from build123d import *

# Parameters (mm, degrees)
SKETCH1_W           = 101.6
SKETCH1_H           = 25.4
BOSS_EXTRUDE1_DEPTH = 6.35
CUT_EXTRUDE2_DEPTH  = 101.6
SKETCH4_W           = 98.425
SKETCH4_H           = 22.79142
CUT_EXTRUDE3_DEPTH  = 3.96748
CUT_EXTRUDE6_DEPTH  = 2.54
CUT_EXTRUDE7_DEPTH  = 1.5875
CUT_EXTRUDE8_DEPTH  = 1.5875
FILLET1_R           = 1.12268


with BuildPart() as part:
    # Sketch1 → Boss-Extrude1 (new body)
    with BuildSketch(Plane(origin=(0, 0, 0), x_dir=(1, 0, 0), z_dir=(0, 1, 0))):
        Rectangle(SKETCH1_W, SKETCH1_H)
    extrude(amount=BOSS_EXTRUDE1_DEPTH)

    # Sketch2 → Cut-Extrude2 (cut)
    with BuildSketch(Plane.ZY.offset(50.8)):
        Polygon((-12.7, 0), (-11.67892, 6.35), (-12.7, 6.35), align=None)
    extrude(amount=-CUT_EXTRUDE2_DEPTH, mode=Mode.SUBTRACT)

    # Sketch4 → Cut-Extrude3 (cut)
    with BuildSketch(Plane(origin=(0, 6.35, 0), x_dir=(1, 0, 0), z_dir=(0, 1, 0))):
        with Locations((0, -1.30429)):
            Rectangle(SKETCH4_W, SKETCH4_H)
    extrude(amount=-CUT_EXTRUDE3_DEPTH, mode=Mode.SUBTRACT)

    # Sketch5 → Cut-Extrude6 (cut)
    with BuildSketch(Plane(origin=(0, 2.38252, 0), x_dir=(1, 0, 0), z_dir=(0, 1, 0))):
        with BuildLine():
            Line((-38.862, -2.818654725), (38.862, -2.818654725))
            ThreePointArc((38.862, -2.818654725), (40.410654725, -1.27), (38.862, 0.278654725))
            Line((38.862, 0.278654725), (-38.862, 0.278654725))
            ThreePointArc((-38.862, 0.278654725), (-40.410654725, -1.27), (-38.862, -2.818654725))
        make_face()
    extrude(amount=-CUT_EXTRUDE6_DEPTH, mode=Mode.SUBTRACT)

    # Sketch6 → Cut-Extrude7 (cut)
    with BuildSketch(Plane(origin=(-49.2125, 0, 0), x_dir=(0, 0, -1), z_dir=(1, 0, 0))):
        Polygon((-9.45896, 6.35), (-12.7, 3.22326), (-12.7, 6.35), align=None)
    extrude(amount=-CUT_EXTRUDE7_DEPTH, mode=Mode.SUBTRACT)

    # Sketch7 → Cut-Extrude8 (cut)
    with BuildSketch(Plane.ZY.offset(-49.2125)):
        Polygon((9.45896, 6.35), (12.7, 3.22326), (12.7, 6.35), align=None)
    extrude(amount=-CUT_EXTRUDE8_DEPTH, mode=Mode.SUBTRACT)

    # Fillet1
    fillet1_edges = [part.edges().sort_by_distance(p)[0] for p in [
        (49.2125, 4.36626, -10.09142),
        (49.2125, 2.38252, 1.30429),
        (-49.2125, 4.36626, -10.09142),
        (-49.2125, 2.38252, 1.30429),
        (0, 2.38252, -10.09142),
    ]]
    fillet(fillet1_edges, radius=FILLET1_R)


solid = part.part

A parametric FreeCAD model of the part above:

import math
import FreeCAD as App
import Part
import Sketcher
Q = App.Units.Quantity


def edges_at(feature, points):
    """Names of the edges that pass closest to the given points."""
    edges = feature.Shape.Edges
    near = lambda p: min(range(len(edges)), key=lambda i: edges[i].distToShape(Part.Vertex(*p))[0])
    return sorted({f"Edge{near(p) + 1}" for p in points})


def add_polygon(sketch, points):
    """Adds a closed chain of lines whose ends are joined by coincident constraints."""
    first, n = sketch.GeometryCount, len(points)
    for a, b in zip(points, points[1:] + points[:1]):
        sketch.addGeometry(Part.LineSegment(App.Vector(*a, 0), App.Vector(*b, 0)), False)
    for i in range(n):
        sketch.addConstraint(Sketcher.Constraint("Coincident", first + i, 2, first + (i + 1) % n, 1))

doc = App.newDocument("Part")
body = doc.addObject("PartDesign::Body", "Body")

# Sketch on XZ plane
sketch1 = body.newObject("Sketcher::SketchObject", "Sketch")
sketch1.AttachmentSupport = (doc.getObject("XZ_Plane"), [""])
sketch1.MapMode = "FlatFace"
add_polygon(sketch1, [(-50.8, -12.7), (-50.8, 12.7), (50.8, 12.7), (50.8, -12.7)])  # lines 0-3
sketch1.addConstraint(Sketcher.Constraint("Vertical", 0))
sketch1.addConstraint(Sketcher.Constraint("Horizontal", 1))
sketch1.addConstraint(Sketcher.Constraint("Vertical", 2))
sketch1.addConstraint(Sketcher.Constraint("Horizontal", 3))
sketch1.addConstraint(Sketcher.Constraint("Symmetric", 0, 2, 2, 2, -1, 1))
sketch1.addConstraint(Sketcher.Constraint("DistanceX", 1, 1, 1, 2, Q("4 in")))
sketch1.addConstraint(Sketcher.Constraint("DistanceY", 0, 1, 0, 2, Q("1 in")))
pad1 = body.newObject("PartDesign::Pad", "Pad")
pad1.Profile = sketch1
pad1.Length = Q("0.25 in")
pad1.Reversed = True

# Sketch on YZ plane
sketch2 = body.newObject("Sketcher::SketchObject", "Sketch001")
sketch2.AttachmentSupport = (doc.getObject("YZ_Plane"), [""])
sketch2.MapMode = "FlatFace"
sketch2.AttachmentOffset = App.Placement(App.Vector(0, 0, -2 * 25.4), App.Rotation())
add_polygon(sketch2, [(0, -12.7), (6.35, -11.67892), (6.35, -12.7)])  # lines 0-2
sketch2.addConstraint(Sketcher.Constraint("Vertical", 1))
sketch2.addConstraint(Sketcher.Constraint("Horizontal", 2))
sketch2.addConstraint(Sketcher.Constraint("PointOnObject", 2, 2, -2))
sketch2.addConstraint(Sketcher.Constraint("DistanceX", 2, 2, 2, 1, Q("0.25 in")))
sketch2.addConstraint(Sketcher.Constraint("DistanceY", 1, 2, -1, 1, Q("0.5 in")))
sketch2.addConstraint(Sketcher.Constraint("DistanceY", 1, 2, 1, 1, Q("0.0402 in")))
pocket1 = body.newObject("PartDesign::Pocket", "Pocket")
pocket1.Profile = sketch2
pocket1.Length = Q("4 in")
pocket1.Reversed = True

# Sketch on XZ plane
sketch3 = body.newObject("Sketcher::SketchObject", "Sketch002")
sketch3.AttachmentSupport = (doc.getObject("XZ_Plane"), [""])
sketch3.MapMode = "FlatFace"
sketch3.AttachmentOffset = App.Placement(App.Vector(0, 0, -0.25 * 25.4), App.Rotation())
add_polygon(sketch3, [(-49.2125, -10.09142), (-49.2125, 12.7), (49.2125, 12.7), (49.2125, -10.09142)])  # lines 0-3
sketch3.addConstraint(Sketcher.Constraint("Vertical", 0))
sketch3.addConstraint(Sketcher.Constraint("Horizontal", 1))
sketch3.addConstraint(Sketcher.Constraint("Vertical", 2))
sketch3.addConstraint(Sketcher.Constraint("Horizontal", 3))
sketch3.addConstraint(Sketcher.Constraint("DistanceY", -1, 1, 0, 2, Q("0.5 in")))
sketch3.addConstraint(Sketcher.Constraint("DistanceX", 1, 1, 1, 2, Q("3.875 in")))
sketch3.addConstraint(Sketcher.Constraint("DistanceY", 0, 1, 0, 2, Q("0.8973 in")))
sketch3.addConstraint(Sketcher.Constraint("DistanceX", 0, 2, -1, 1, Q("1.9375 in")))
pocket2 = body.newObject("PartDesign::Pocket", "Pocket001")
pocket2.Profile = sketch3
pocket2.Length = Q("0.1562 in")
pocket2.Reversed = True

# Sketch on XZ plane
sketch4 = body.newObject("Sketcher::SketchObject", "Sketch003")
sketch4.AttachmentSupport = (doc.getObject("XZ_Plane"), [""])
sketch4.MapMode = "FlatFace"
sketch4.AttachmentOffset = App.Placement(App.Vector(0, 0, -0.0938 * 25.4), App.Rotation())
sketch4.addGeometry(Part.LineSegment(App.Vector(-38.862, 2.818655, 0), App.Vector(38.862, 2.818655, 0)), False)
sketch4.addGeometry(Part.ArcOfCircle(Part.Circle(App.Vector(38.862, 1.27, 0), App.Vector(0, 0, 1), 1.548655), math.radians(-90), math.radians(90)), False)
sketch4.addGeometry(Part.LineSegment(App.Vector(38.862, -0.278655, 0), App.Vector(-38.862, -0.278655, 0)), False)
sketch4.addGeometry(Part.ArcOfCircle(Part.Circle(App.Vector(-38.862, 1.27, 0), App.Vector(0, 0, 1), 1.548655), math.radians(90), math.radians(270)), False)
sketch4.addConstraint(Sketcher.Constraint("Tangent", 0, 2, 1, 2))
sketch4.addConstraint(Sketcher.Constraint("Tangent", 1, 1, 2, 1))
sketch4.addConstraint(Sketcher.Constraint("Tangent", 2, 2, 3, 2))
sketch4.addConstraint(Sketcher.Constraint("Tangent", 3, 1, 0, 1))
sketch4.addConstraint(Sketcher.Constraint("Horizontal", 0))
sketch4.addConstraint(Sketcher.Constraint("Horizontal", 2))
sketch4.addConstraint(Sketcher.Constraint("DistanceX", 0, 1, 0, 2, Q("3.06 in")))
sketch4.addConstraint(Sketcher.Constraint("DistanceX", -1, 1, 1, 3, Q("1.53 in")))
sketch4.addConstraint(Sketcher.Constraint("DistanceY", -1, 1, 1, 3, Q("0.05 in")))
sketch4.addConstraint(Sketcher.Constraint("Radius", 1, Q("1.548655 mm")))
pocket3 = body.newObject("PartDesign::Pocket", "Pocket002")
pocket3.Profile = sketch4
pocket3.Length = Q("0.1 in")
pocket3.Reversed = True

# Sketch on YZ plane
sketch5 = body.newObject("Sketcher::SketchObject", "Sketch004")
sketch5.AttachmentSupport = (doc.getObject("YZ_Plane"), [""])
sketch5.MapMode = "FlatFace"
sketch5.AttachmentOffset = App.Placement(App.Vector(0, 0, -1.9375 * 25.4), App.Rotation())
add_polygon(sketch5, [(3.22326, 12.7), (6.35, 9.45896), (6.35, 12.7)])  # lines 0-2
sketch5.addConstraint(Sketcher.Constraint("Vertical", 1))
sketch5.addConstraint(Sketcher.Constraint("Horizontal", 2))
sketch5.addConstraint(Sketcher.Constraint("DistanceY", -1, 1, 1, 2, Q("0.5 in")))
sketch5.addConstraint(Sketcher.Constraint("DistanceX", -1, 1, 0, 2, Q("0.25 in")))
sketch5.addConstraint(Sketcher.Constraint("DistanceX", 2, 2, 2, 1, Q("0.1231 in")))
sketch5.addConstraint(Sketcher.Constraint("DistanceY", 1, 1, 1, 2, Q("0.1276 in")))
pocket4 = body.newObject("PartDesign::Pocket", "Pocket003")
pocket4.Profile = sketch5
pocket4.Length = Q("0.0625 in")

# Sketch on YZ plane
sketch6 = body.newObject("Sketcher::SketchObject", "Sketch005")
sketch6.AttachmentSupport = (doc.getObject("YZ_Plane"), [""])
sketch6.MapMode = "FlatFace"
sketch6.AttachmentOffset = App.Placement(App.Vector(0, 0, 1.9375 * 25.4), App.Rotation())
add_polygon(sketch6, [(6.35, 9.45896), (3.22326, 12.7), (6.35, 12.7)])  # lines 0-2
sketch6.addConstraint(Sketcher.Constraint("Horizontal", 1))
sketch6.addConstraint(Sketcher.Constraint("Vertical", 2))
sketch6.addConstraint(Sketcher.Constraint("DistanceY", -1, 1, 0, 2, Q("0.5 in")))
sketch6.addConstraint(Sketcher.Constraint("DistanceX", -1, 1, 1, 2, Q("0.25 in")))
sketch6.addConstraint(Sketcher.Constraint("DistanceX", 1, 1, 1, 2, Q("0.1231 in")))
sketch6.addConstraint(Sketcher.Constraint("DistanceY", 2, 2, 2, 1, Q("0.1276 in")))
pocket5 = body.newObject("PartDesign::Pocket", "Pocket004")
pocket5.Profile = sketch6
pocket5.Length = Q("0.0625 in")
pocket5.Reversed = True
doc.recompute()

fillet = body.newObject("PartDesign::Fillet", "Fillet")
fillet.Base = (pocket5, edges_at(pocket5, [
    (49.212, 4.366, -10.091),
    (49.212, 2.383, 1.304),
    (-49.212, 4.366, -10.091),
    (-49.212, 2.383, 1.304),
    (0, 2.383, -10.091),
]))
fillet.Radius = Q("0.0442 in")

doc.recompute()
